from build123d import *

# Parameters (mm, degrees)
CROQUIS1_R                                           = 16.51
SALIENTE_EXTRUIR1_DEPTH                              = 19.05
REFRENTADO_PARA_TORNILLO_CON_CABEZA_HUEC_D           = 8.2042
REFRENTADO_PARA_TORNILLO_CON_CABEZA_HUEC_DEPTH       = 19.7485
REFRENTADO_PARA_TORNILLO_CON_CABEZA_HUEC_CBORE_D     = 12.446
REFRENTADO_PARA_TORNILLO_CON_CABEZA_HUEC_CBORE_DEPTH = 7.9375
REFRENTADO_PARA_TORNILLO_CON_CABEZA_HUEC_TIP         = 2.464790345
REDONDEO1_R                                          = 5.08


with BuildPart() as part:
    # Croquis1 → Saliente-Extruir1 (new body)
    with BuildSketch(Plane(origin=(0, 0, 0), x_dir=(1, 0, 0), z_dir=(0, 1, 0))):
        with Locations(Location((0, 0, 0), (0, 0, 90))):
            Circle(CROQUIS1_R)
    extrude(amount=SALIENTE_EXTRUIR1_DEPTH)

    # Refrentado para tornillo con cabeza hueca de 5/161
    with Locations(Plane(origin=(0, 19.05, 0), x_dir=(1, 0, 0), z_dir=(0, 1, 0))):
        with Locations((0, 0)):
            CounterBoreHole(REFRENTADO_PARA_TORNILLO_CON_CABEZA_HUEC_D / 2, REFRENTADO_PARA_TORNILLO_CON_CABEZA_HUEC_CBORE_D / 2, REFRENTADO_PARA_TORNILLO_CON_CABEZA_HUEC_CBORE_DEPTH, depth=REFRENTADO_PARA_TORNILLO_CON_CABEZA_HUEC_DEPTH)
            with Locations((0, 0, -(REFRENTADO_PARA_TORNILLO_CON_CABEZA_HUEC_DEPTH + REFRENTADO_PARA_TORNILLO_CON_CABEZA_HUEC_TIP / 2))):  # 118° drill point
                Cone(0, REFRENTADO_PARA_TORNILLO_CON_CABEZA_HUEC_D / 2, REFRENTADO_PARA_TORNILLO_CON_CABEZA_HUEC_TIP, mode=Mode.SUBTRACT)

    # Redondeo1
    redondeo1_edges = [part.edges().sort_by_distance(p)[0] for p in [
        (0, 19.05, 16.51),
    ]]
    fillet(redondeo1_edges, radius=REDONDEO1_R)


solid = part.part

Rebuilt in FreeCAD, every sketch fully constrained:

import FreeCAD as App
import Part
import Sketcher
from FreeCAD import Vector
Q = App.Units.Quantity


def edges_at(feature, points):
    """Names of the edges that pass closest to the given points."""
    edges = feature.Shape.Edges
    near = lambda p: min(range(len(edges)), key=lambda i: edges[i].distToShape(Part.Vertex(*p))[0])
    return sorted({f"Edge{near(p) + 1}" for p in points})

doc = App.newDocument("Part")
body = doc.addObject("PartDesign::Body", "Body")

# Sketch on XZ plane
sketch1 = body.newObject("Sketcher::SketchObject", "Sketch")
sketch1.AttachmentSupport = (doc.getObject("XZ_Plane"), [""])
sketch1.MapMode = "FlatFace"
sketch1.addGeometry(Part.Circle(Vector(0, 0, 0), Vector(0, 0, 1), 17), False)
sketch1.addConstraint(Sketcher.Constraint("Coincident", 0, 3, -1, 1))
sketch1.addConstraint(Sketcher.Constraint("Diameter", 0, Q("1.3 in")))
pad1 = body.newObject("PartDesign::Pad", "Pad")
pad1.Profile = sketch1
pad1.Length = Q("0.75 in")
pad1.Reversed = True

# Sketch on XZ plane
sketch2 = body.newObject("Sketcher::SketchObject", "Sketch001")
sketch2.AttachmentSupport = (doc.getObject("XZ_Plane"), [""])
sketch2.MapMode = "FlatFace"
sketch2.AttachmentOffset = App.Placement(Vector(0, 0, -0.75 * 25.4), App.Rotation())
sketch2.addGeometry(Part.Circle(Vector(0, 0, 0), Vector(0, 0, 1), 4.1), False)
sketch2.addConstraint(Sketcher.Constraint("Coincident", 0, 3, -1, 1))
sketch2.addConstraint(Sketcher.Constraint("Diameter", 0, Q("0.323 in")))
doc.recompute()
hole = body.newObject("PartDesign::Hole", "Hole")
hole.Profile = sketch2
hole.ThreadType = "None"
hole.Diameter = Q("0.323 in")
hole.DepthType = "Dimension"
hole.Depth = Q("0.7775 in")
hole.DrillPoint = "Angled"
hole.DrillPointAngle = 118
hole.HoleCutType = "Counterbore"
hole.HoleCutDiameter = Q("0.49 in")
hole.HoleCutDepth = Q("0.3125 in")
hole.Reversed = True
doc.recompute()

fillet = body.newObject("PartDesign::Fillet", "Fillet")
fillet.Base = (hole, edges_at(hole, [(0, 19.05, 16.51)]))
fillet.Radius = Q("0.2 in")

doc.recompute()
